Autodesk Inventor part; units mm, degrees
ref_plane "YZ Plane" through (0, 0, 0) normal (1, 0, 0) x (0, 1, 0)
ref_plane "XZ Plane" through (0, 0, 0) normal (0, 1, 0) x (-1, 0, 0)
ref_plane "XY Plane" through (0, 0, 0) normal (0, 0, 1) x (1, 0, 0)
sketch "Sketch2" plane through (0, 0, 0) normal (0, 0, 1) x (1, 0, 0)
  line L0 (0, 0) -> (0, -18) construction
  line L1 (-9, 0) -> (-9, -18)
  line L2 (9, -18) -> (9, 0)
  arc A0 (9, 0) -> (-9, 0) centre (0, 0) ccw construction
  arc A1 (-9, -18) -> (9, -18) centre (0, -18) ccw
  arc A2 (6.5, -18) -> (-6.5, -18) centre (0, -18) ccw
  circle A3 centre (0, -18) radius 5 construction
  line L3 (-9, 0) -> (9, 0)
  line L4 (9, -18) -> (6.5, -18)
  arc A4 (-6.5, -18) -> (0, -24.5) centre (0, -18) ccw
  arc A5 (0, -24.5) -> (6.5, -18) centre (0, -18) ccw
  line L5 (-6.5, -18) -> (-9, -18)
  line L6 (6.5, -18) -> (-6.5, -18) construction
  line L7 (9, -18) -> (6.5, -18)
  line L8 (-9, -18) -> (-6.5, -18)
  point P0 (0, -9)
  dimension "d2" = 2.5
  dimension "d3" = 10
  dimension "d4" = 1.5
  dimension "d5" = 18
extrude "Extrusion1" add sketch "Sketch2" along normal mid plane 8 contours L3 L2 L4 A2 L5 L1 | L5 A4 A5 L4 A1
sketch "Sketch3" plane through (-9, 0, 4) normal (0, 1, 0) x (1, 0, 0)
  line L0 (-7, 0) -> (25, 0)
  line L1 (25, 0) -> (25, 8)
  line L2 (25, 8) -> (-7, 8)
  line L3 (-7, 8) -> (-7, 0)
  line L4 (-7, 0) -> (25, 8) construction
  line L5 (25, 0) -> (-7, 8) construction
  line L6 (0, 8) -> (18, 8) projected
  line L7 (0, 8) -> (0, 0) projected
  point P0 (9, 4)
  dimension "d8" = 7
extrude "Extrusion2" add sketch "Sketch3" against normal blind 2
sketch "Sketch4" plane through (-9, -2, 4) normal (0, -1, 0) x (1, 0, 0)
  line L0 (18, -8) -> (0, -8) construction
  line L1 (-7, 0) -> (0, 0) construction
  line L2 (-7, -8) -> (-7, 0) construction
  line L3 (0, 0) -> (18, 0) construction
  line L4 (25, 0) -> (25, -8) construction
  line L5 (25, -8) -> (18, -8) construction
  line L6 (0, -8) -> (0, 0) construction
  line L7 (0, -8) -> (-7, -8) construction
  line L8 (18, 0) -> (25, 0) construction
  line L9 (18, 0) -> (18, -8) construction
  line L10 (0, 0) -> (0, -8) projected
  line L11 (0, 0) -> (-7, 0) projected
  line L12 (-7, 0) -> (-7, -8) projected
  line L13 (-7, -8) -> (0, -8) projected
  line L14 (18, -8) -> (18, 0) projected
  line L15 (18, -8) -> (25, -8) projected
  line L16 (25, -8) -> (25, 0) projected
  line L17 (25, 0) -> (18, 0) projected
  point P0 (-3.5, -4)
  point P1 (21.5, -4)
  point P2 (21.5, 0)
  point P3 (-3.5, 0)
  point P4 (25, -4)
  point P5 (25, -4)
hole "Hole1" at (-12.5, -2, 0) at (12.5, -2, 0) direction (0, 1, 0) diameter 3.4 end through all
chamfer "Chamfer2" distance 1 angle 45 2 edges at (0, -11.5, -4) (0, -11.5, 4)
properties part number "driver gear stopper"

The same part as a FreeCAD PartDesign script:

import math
import FreeCAD as App
import Part
import Sketcher

V = App.Vector


def edges_at(feature, points):
    """Names of the edges that pass closest to the given points."""
    edges = feature.Shape.Edges
    near = lambda p: min(range(len(edges)), key=lambda i: edges[i].distToShape(Part.Vertex(*p))[0])
    return sorted({f"Edge{near(p) + 1}" for p in points})


def add_polygon(sketch, points):
    """Adds a closed chain of lines whose ends are joined by coincident constraints."""
    first, n = sketch.GeometryCount, len(points)
    for a, b in zip(points, points[1:] + points[:1]):
        sketch.addGeometry(Part.LineSegment(App.Vector(*a, 0), App.Vector(*b, 0)), False)
    for i in range(n):
        sketch.addConstraint(Sketcher.Constraint("Coincident", first + i, 2, first + (i + 1) % n, 1))

doc = App.newDocument("Part")
body = doc.addObject("PartDesign::Body", "Body")

sketch1 = body.newObject("Sketcher::SketchObject", "Sketch")
sketch1.AttachmentSupport = (doc.getObject("XY_Plane"), [""])
sketch1.MapMode = "FlatFace"
sketch1.addGeometry([
    Part.LineSegment(V(9, 0, 0), V(-9, 0, 0)),
    Part.LineSegment(V(-9, 0, 0), V(-9, -18, 0)),
    Part.ArcOfCircle(Part.Circle(V(0, -18, 0), V(0, 0, 1), 9), math.radians(180), math.radians(360)),
    Part.LineSegment(V(9, -18, 0), V(9, 0, 0)),
    Part.Circle(V(0, -18, 0), V(0, 0, 1), 6),
], False)
sketch1.addConstraint([
    Sketcher.Constraint("Coincident", 0, 2, 1, 1),
    Sketcher.Constraint("Tangent", 1, 2, 2, 1),
    Sketcher.Constraint("Tangent", 2, 2, 3, 1),
    Sketcher.Constraint("Coincident", 3, 2, 0, 1),
    Sketcher.Constraint("Horizontal", 0),
    Sketcher.Constraint("Vertical", 1),
    Sketcher.Constraint("Vertical", 3),
    Sketcher.Constraint("Coincident", 4, 3, 2, 3),
    Sketcher.Constraint("Symmetric", 0, 2, 3, 2, -1, 1),
    Sketcher.Constraint("Equal", 0, 1),
    Sketcher.Constraint("Radius", 2, 9.0),
    Sketcher.Constraint("Diameter", 4, 13.0),
])
pad1 = body.newObject("PartDesign::Pad", "Pad")
pad1.Profile = sketch1
pad1.Length = 8
pad1.Midplane = True

sketch2 = body.newObject("Sketcher::SketchObject", "Sketch001")
sketch2.AttachmentSupport = (doc.getObject("XZ_Plane"), [""])
sketch2.MapMode = "FlatFace"
add_polygon(sketch2, [(-16, -4), (-16, 4), (16, 4), (16, -4)])
sketch2.addConstraint([
    Sketcher.Constraint("Vertical", 0),
    Sketcher.Constraint("Horizontal", 1),
    Sketcher.Constraint("Vertical", 2),
    Sketcher.Constraint("Horizontal", 3),
    Sketcher.Constraint("Symmetric", 0, 2, 2, 2, -1, 1),
    Sketcher.Constraint("DistanceX", 1, 1, 1, 2, 32.0),
    Sketcher.Constraint("DistanceY", 0, 1, 0, 2, 8.0),
])
pad2 = body.newObject("PartDesign::Pad", "Pad001")
pad2.Profile = sketch2
pad2.Length = 2

sketch3 = body.newObject("Sketcher::SketchObject", "Sketch002")
sketch3.AttachmentSupport = (doc.getObject("XZ_Plane"), [""])
sketch3.MapMode = "FlatFace"
sketch3.AttachmentOffset = App.Placement(V(0, 0, 2), App.Rotation())
sketch3.addGeometry([
    Part.Circle(V(-12.5, 0, 0), V(0, 0, 1), 1.7),
    Part.Circle(V(12.5, 0, 0), V(0, 0, 1), 1.7),
], False)
sketch3.addConstraint([
    Sketcher.Constraint("Equal", 0, 1),
    Sketcher.Constraint("Symmetric", 0, 3, 1, 3, -1, 1),
    Sketcher.Constraint("PointOnObject", 0, 3, -1),
    Sketcher.Constraint("Diameter", 0, 3.4),
    Sketcher.Constraint("DistanceX", 0, 3, 1, 3, 25.0),
])
doc.recompute()
hole = body.newObject("PartDesign::Hole", "Hole")
hole.Profile = sketch3
hole.ThreadType = "None"
hole.Diameter = 3.4
hole.DepthType = "ThroughAll"
doc.recompute()

chamfer = body.newObject("PartDesign::Chamfer", "Chamfer")
chamfer.Base = (hole, edges_at(hole, [(0, -11.5, -4), (0, -11.5, 4)]))
chamfer.Size = 1

doc.recompute()
